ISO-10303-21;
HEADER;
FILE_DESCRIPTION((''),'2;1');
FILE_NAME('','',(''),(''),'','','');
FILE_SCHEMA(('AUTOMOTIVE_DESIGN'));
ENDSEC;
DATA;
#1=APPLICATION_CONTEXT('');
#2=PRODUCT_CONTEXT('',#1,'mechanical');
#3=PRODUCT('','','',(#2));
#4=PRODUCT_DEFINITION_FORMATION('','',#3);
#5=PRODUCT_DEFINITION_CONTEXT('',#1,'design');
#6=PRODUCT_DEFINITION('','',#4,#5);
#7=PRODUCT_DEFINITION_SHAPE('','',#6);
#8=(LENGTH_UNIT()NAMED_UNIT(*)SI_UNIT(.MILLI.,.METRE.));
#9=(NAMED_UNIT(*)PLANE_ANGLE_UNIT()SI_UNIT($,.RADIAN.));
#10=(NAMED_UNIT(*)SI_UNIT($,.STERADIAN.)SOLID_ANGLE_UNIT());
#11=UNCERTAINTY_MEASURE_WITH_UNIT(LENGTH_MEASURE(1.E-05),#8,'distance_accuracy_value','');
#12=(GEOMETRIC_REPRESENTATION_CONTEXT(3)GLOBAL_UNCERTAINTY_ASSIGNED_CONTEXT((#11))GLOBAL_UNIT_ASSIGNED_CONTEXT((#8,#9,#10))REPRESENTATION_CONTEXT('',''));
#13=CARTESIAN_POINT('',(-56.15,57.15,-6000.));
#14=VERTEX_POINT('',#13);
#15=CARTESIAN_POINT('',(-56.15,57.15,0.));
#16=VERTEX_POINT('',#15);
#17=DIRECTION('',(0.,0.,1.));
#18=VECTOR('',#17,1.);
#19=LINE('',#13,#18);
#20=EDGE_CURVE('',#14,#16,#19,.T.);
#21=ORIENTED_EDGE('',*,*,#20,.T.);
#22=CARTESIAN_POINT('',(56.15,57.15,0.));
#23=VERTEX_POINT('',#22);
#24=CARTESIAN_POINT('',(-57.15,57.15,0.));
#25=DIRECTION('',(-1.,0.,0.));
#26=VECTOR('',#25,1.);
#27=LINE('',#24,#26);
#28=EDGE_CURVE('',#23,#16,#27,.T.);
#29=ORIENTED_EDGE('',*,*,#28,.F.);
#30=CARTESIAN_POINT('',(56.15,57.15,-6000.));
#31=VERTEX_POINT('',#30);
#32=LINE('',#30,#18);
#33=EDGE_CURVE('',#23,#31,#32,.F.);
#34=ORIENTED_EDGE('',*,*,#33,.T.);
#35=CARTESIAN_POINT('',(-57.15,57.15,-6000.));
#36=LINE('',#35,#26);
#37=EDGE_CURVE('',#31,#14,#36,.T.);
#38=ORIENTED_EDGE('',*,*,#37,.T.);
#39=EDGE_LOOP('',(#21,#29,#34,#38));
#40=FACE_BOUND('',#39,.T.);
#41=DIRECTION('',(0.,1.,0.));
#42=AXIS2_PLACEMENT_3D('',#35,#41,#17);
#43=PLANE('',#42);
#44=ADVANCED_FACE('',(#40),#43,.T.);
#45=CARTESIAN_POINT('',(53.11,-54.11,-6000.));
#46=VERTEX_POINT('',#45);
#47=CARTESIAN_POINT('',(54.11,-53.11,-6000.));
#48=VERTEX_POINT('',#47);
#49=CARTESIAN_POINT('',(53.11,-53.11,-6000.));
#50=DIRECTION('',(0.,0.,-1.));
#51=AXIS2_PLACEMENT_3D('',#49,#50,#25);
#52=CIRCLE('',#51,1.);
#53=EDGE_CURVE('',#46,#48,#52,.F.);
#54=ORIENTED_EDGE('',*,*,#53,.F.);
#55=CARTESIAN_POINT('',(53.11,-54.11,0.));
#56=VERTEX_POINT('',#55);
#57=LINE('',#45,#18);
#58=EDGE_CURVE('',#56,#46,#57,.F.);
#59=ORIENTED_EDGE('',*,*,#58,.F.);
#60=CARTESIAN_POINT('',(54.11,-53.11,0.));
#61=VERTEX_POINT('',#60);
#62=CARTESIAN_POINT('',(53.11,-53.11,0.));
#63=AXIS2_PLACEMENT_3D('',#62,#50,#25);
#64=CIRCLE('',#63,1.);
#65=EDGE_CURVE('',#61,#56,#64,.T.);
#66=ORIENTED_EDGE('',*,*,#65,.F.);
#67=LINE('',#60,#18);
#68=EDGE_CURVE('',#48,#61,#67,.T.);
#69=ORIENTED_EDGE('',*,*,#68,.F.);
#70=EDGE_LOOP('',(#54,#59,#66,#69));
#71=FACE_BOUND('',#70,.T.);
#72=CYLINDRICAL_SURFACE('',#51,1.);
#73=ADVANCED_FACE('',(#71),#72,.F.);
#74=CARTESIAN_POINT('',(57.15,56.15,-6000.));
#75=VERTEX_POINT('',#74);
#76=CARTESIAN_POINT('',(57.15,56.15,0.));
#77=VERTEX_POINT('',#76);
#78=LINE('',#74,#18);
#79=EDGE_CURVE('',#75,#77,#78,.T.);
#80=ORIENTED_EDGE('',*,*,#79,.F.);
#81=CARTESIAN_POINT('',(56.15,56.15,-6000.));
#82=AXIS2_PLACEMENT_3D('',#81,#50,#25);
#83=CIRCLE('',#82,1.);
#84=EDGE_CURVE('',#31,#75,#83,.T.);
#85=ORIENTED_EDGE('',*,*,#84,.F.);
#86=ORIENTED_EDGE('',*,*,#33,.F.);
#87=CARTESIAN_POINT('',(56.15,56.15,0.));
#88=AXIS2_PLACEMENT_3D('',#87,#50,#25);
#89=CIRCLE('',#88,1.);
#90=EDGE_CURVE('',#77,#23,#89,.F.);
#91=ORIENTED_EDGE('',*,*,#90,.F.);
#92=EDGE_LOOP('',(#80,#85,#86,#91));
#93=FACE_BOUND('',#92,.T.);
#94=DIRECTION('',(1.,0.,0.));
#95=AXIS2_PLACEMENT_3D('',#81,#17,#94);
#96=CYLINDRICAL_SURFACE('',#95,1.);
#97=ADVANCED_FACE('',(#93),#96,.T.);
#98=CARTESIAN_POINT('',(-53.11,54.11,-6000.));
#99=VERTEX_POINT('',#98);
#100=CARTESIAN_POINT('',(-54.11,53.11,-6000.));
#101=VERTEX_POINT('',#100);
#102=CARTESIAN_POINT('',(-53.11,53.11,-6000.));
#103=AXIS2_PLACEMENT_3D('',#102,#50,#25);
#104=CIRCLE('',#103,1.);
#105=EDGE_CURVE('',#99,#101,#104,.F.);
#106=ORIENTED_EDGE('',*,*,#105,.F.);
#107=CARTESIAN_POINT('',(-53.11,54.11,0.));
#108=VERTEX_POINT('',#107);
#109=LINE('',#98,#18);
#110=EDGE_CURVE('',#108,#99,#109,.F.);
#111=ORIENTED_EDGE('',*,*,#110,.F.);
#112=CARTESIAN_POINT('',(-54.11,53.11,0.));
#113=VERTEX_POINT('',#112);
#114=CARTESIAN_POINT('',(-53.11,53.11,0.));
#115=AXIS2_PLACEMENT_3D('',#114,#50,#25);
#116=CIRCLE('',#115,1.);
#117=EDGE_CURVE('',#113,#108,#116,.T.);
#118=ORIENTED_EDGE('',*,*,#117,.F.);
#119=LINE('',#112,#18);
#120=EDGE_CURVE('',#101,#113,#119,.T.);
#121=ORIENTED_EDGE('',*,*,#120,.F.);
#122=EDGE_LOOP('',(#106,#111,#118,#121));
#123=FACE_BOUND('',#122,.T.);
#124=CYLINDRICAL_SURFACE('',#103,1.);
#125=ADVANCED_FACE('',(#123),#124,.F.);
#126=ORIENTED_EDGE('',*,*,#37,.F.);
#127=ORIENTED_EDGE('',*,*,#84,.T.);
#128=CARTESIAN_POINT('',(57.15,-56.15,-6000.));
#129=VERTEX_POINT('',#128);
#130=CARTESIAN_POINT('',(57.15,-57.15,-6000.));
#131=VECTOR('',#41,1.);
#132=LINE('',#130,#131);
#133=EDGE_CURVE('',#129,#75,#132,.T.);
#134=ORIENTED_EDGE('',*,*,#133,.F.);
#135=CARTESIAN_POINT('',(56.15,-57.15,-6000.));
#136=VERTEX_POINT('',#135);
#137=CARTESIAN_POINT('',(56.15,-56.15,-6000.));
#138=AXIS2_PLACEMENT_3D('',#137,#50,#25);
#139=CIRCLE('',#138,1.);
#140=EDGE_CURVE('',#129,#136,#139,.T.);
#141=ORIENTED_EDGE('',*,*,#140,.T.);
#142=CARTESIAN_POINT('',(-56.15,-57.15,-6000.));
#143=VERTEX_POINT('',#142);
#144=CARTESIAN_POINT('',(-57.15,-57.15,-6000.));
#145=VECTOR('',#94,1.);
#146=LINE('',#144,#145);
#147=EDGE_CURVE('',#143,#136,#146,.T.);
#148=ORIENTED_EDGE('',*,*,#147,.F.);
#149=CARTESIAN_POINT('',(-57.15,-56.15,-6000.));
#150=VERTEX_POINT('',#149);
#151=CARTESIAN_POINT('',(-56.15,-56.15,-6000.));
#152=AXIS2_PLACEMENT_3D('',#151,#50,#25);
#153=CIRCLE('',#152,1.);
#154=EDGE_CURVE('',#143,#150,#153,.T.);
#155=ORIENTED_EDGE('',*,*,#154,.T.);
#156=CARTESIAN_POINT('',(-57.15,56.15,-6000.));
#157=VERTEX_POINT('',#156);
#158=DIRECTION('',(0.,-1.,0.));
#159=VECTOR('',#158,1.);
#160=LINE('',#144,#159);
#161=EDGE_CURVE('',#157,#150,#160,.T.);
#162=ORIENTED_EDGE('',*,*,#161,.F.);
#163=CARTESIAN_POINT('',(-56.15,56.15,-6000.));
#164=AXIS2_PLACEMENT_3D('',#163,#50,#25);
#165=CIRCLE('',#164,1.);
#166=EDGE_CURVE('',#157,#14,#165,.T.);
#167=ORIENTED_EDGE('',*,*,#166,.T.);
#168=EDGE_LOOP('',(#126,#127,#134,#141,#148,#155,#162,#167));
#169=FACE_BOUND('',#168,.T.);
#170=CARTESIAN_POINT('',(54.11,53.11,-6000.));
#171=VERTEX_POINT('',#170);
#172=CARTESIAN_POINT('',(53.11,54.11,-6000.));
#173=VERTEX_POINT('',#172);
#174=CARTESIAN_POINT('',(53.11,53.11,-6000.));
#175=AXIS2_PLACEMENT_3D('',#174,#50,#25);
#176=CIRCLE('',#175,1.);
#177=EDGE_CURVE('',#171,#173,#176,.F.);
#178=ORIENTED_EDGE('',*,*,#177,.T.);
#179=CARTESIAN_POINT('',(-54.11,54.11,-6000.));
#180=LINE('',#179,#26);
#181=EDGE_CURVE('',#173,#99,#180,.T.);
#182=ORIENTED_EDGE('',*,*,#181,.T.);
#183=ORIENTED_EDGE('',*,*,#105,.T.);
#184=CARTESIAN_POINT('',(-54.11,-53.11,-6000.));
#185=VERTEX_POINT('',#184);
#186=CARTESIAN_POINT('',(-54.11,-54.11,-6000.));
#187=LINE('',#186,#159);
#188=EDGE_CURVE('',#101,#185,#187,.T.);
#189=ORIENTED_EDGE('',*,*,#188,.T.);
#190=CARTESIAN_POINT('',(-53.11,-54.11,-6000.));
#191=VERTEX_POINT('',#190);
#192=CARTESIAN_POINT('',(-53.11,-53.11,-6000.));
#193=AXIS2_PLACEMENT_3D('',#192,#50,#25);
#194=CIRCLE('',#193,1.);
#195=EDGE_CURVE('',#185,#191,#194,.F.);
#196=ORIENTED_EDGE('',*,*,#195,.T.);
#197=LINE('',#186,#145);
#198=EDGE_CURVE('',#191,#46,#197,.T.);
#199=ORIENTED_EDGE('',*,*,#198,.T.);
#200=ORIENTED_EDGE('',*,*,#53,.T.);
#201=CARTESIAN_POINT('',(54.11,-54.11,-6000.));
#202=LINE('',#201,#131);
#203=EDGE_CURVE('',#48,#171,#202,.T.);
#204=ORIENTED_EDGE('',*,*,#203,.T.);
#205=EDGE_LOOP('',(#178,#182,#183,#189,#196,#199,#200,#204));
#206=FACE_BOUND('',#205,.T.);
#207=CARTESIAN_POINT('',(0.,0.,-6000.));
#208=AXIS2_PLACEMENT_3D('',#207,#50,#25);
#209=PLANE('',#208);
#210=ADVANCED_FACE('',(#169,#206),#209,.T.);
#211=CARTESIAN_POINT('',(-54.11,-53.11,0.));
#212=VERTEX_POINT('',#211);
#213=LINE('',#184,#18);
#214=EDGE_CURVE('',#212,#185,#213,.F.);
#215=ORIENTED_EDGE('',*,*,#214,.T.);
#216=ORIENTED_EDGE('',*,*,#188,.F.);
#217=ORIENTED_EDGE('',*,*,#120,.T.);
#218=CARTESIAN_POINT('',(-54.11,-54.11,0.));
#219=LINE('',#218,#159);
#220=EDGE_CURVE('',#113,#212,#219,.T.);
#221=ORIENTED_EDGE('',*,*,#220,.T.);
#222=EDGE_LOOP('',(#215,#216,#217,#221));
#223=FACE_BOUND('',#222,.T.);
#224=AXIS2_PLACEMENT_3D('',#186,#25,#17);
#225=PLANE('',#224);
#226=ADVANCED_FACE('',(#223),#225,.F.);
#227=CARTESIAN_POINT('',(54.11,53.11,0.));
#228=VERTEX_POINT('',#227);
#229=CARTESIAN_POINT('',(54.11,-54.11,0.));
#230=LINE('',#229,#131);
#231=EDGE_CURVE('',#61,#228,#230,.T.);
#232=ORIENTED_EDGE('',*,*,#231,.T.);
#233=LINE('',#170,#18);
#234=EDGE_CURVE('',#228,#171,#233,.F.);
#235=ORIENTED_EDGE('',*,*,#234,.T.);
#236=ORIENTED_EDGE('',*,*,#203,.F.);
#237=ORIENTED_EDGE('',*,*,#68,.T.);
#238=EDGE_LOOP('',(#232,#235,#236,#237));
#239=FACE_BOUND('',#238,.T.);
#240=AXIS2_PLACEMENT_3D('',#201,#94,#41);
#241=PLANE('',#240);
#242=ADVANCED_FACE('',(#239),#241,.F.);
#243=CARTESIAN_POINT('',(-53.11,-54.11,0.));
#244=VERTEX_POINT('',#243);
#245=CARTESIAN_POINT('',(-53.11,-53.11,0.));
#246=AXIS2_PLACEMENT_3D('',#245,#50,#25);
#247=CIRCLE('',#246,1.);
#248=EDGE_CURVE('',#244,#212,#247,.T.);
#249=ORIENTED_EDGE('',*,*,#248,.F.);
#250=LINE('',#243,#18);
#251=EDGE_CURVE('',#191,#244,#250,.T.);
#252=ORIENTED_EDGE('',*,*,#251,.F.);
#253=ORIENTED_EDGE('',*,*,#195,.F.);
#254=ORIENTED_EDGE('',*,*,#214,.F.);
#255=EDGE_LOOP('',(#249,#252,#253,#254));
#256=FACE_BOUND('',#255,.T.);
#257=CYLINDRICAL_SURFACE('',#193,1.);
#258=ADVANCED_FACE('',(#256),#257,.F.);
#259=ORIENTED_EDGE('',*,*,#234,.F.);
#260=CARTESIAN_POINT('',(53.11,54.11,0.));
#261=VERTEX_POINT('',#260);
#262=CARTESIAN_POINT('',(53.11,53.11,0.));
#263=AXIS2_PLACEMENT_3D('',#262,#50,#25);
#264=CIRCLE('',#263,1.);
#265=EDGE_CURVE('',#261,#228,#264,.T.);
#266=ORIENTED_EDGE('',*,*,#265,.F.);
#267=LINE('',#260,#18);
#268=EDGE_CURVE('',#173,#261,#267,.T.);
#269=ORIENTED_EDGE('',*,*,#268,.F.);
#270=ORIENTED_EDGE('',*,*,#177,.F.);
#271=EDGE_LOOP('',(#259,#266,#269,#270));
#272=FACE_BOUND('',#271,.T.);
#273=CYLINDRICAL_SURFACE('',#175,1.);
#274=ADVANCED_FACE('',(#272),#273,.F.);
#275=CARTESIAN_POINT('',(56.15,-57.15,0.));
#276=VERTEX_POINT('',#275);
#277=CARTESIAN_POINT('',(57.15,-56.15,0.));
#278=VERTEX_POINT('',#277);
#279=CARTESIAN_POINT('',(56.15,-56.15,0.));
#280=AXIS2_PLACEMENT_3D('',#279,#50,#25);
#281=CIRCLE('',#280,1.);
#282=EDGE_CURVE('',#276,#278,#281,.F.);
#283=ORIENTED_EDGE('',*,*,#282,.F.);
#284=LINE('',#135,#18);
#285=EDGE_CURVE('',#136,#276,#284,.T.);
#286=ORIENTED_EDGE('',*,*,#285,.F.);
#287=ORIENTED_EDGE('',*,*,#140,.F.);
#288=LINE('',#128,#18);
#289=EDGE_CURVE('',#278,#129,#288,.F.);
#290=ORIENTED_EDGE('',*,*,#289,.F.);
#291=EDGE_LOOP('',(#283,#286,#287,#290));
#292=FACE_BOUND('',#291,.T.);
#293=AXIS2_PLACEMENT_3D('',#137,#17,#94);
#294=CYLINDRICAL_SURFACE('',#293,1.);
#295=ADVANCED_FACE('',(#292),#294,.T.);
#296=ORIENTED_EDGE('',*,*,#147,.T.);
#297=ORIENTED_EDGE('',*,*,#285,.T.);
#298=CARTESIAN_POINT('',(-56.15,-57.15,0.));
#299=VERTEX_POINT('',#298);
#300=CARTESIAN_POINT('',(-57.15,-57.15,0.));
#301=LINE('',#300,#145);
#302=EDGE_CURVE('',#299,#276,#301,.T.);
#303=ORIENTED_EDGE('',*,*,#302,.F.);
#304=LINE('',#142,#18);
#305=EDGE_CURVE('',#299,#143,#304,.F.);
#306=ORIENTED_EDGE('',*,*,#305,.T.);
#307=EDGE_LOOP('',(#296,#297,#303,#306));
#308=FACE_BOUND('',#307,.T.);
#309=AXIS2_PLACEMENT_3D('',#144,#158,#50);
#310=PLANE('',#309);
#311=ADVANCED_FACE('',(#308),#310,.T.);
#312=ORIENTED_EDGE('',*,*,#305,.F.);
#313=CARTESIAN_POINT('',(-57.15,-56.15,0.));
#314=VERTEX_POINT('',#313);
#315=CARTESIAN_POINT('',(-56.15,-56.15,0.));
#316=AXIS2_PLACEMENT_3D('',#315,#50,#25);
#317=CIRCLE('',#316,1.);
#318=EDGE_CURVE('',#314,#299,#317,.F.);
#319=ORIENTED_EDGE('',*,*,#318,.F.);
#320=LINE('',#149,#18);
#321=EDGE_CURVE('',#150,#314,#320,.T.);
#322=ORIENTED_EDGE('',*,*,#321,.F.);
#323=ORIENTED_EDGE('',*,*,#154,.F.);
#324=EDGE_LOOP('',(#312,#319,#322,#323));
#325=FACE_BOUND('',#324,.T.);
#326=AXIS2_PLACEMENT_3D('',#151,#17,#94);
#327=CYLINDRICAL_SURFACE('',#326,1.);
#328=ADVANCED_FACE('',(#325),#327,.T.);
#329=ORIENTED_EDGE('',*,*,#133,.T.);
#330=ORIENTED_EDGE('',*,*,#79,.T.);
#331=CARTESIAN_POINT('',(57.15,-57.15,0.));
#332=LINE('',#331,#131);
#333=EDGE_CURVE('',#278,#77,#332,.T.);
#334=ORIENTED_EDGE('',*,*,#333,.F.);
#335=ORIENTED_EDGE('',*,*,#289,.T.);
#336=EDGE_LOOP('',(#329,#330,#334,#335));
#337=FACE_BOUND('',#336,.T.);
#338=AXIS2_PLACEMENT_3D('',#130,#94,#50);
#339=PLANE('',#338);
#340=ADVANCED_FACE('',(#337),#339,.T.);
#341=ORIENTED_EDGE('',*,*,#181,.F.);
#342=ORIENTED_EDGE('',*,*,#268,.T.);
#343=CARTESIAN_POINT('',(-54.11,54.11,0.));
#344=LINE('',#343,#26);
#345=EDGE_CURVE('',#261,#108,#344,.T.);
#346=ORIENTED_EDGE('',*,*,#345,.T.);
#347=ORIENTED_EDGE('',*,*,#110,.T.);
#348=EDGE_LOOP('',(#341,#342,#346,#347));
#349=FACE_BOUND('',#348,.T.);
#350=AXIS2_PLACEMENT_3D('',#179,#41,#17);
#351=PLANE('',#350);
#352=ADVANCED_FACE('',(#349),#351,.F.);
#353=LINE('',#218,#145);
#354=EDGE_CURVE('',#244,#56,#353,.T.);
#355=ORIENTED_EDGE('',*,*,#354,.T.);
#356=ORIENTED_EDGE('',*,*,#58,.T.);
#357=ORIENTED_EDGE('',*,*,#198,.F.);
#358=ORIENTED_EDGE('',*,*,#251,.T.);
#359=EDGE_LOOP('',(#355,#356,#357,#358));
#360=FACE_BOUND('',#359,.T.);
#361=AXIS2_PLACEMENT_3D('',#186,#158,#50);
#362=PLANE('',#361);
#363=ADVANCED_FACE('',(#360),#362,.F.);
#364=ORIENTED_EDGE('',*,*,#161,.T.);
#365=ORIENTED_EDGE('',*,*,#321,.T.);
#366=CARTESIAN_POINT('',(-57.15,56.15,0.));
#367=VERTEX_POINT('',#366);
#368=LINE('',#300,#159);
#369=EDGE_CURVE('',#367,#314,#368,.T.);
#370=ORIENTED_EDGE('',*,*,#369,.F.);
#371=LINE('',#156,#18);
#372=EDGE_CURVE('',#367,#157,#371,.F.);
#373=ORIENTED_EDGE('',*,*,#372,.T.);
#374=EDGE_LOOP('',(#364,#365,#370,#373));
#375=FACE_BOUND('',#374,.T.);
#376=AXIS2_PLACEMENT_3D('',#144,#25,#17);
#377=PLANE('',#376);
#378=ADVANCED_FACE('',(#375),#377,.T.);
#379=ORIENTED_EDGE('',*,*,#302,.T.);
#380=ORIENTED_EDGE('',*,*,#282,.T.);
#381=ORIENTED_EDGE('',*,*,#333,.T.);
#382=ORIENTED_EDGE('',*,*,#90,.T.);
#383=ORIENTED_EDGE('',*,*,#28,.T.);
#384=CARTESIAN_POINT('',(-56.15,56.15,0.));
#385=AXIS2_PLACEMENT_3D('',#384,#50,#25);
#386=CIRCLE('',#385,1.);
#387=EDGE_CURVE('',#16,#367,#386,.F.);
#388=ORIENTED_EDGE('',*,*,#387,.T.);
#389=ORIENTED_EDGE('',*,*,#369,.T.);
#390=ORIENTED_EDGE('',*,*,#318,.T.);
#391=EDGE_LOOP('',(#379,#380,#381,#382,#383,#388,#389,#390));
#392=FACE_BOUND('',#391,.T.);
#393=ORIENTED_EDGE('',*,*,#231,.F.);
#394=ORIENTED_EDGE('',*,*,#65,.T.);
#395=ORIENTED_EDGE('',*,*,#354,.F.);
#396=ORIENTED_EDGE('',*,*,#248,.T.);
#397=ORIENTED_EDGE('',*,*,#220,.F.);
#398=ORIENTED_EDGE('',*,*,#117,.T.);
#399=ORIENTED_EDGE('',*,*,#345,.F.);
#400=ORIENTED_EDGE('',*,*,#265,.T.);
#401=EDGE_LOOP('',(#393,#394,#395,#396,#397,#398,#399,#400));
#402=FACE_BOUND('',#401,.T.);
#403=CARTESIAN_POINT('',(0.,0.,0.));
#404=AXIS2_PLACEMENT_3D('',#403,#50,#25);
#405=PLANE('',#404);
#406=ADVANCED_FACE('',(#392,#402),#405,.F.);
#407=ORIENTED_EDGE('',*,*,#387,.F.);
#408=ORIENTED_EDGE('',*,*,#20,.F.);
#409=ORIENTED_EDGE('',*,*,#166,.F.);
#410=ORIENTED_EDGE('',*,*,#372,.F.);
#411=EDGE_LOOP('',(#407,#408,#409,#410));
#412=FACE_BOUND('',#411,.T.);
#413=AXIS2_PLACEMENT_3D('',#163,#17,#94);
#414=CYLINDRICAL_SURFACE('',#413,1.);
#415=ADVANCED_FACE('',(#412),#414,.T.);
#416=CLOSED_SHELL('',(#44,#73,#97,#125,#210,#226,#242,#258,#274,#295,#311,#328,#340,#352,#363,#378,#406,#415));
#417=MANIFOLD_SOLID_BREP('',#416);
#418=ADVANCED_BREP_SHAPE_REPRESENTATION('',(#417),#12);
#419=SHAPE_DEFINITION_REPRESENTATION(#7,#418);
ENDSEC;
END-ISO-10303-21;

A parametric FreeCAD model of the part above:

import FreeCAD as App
import Part
import Sketcher
from FreeCAD import Vector


def edges_at(feature, points):
    """Names of the edges that pass closest to the given points."""
    edges = feature.Shape.Edges
    near = lambda p: min(range(len(edges)), key=lambda i: edges[i].distToShape(Part.Vertex(*p))[0])
    return sorted({f"Edge{near(p) + 1}" for p in points})


def add_polygon(sketch, points):
    """Adds a closed chain of lines whose ends are joined by coincident constraints."""
    first, n = sketch.GeometryCount, len(points)
    for a, b in zip(points, points[1:] + points[:1]):
        sketch.addGeometry(Part.LineSegment(App.Vector(*a, 0), App.Vector(*b, 0)), False)
    for i in range(n):
        sketch.addConstraint(Sketcher.Constraint("Coincident", first + i, 2, first + (i + 1) % n, 1))

doc = App.newDocument("Part")
body = doc.addObject("PartDesign::Body", "Body")

# Sketch on XY plane
sketch1 = body.newObject("Sketcher::SketchObject", "Sketch")
sketch1.AttachmentSupport = (doc.getObject("XY_Plane"), [""])
sketch1.MapMode = "FlatFace"
add_polygon(sketch1, [(-57.15, 57.15), (-57.15, -57.15), (57.15, -57.15), (57.15, 57.15)])  # lines 0-3
add_polygon(sketch1, [(54.11, -54.11), (-54.11, -54.11), (-54.11, 54.11), (54.11, 54.11)])  # lines 4-7
sketch1.addConstraint([
    Sketcher.Constraint("Vertical", 0),
    Sketcher.Constraint("Horizontal", 1),
    Sketcher.Constraint("Vertical", 2),
    Sketcher.Constraint("Horizontal", 3),
    Sketcher.Constraint("Horizontal", 4),
    Sketcher.Constraint("Vertical", 5),
    Sketcher.Constraint("Horizontal", 6),
    Sketcher.Constraint("Vertical", 7),
    Sketcher.Constraint("Symmetric", 0, 2, 2, 2, -1, 1),
    Sketcher.Constraint("Symmetric", 4, 2, 6, 2, -1, 1),
    Sketcher.Constraint("Equal", 3, 0),
    Sketcher.Constraint("Equal", 6, 5),
    Sketcher.Constraint("DistanceX", 1, 1, 1, 2, 114.3),
    Sketcher.Constraint("DistanceX", 4, 2, 4, 1, 108.22),
])
pad1 = body.newObject("PartDesign::Pad", "Pad")
pad1.Profile = sketch1
pad1.Length = 6000
pad1.Reversed = True
doc.recompute()

fillet = body.newObject("PartDesign::Fillet", "Fillet")
fillet.Base = (pad1, edges_at(pad1, [
    (54.11, -54.11, -3000),
    (-54.11, -54.11, -3000),
    (-54.11, 54.11, -3000),
    (54.11, 54.11, -3000),
    (57.15, -57.15, -3000),
    (-57.15, -57.15, -3000),
    (-57.15, 57.15, -3000),
    (57.15, 57.15, -3000),
]))
fillet.Radius = 1

doc.recompute()
